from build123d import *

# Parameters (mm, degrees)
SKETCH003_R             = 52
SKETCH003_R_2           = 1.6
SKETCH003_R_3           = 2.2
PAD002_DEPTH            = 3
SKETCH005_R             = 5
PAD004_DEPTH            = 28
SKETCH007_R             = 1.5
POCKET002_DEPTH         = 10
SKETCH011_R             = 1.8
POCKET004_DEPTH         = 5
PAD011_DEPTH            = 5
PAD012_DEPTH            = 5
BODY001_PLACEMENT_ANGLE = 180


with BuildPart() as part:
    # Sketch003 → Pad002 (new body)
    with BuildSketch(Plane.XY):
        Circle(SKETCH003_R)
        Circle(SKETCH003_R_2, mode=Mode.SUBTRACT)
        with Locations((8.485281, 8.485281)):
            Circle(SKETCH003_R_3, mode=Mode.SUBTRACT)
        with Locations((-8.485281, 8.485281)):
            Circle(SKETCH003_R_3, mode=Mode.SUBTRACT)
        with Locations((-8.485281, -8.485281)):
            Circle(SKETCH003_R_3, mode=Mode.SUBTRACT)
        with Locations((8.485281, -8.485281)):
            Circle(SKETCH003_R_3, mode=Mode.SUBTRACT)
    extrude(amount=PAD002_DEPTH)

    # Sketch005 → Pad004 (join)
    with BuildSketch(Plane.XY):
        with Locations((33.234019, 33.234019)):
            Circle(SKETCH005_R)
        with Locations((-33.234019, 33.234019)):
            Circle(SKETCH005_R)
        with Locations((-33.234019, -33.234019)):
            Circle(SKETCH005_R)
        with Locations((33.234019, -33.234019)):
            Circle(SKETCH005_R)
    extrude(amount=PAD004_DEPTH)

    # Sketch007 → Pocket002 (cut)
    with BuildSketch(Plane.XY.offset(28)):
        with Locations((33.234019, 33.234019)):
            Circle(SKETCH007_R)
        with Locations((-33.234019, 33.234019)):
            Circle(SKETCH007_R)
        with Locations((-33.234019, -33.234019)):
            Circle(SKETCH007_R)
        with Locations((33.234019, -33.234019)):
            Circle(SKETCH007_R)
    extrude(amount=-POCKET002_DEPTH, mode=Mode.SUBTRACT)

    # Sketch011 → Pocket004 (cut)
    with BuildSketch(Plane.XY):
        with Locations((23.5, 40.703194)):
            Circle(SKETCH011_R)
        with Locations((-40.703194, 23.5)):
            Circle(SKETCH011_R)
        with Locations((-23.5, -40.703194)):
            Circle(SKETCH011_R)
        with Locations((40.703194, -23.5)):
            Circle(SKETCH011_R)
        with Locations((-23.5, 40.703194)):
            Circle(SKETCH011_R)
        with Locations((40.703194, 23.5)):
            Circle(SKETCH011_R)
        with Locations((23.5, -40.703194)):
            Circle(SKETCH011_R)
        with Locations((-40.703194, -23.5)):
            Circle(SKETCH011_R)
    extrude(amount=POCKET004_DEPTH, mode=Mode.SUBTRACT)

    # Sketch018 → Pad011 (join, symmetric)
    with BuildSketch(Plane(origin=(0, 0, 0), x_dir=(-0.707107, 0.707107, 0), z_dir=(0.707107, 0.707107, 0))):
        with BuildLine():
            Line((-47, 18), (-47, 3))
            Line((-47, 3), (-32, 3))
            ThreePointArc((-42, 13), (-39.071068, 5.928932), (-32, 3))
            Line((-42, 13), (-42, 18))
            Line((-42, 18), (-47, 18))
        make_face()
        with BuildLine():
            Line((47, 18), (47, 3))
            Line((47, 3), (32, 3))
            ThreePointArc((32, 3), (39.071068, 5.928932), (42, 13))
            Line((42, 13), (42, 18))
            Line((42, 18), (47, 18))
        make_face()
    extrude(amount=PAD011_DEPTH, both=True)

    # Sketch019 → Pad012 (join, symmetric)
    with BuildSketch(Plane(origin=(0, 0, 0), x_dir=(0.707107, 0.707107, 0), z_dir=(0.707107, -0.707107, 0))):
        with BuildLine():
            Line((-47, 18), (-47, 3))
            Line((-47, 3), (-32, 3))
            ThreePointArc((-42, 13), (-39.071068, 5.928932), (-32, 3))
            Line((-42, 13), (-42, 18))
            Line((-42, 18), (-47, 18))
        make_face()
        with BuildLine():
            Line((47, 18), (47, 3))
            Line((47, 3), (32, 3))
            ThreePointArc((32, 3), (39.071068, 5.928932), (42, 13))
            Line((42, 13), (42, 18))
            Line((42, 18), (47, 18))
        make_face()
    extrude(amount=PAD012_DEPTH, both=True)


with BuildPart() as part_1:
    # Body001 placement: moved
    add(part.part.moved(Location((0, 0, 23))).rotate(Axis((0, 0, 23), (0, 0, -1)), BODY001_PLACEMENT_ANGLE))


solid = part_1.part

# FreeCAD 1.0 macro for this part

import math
import FreeCAD as App
import Part
import Sketcher
from FreeCAD import Vector

doc = App.newDocument("Part")
params = doc.addObject("Spreadsheet::Sheet", "Params")
for row, (alias, value) in enumerate([
    ("sketch1_diameter", "104 mm"),
    ("sketch1_diameter2", "4.4 mm"),
    ("sketch1_diameter3", "3.2 mm"),
    ("pad1_length", "3 mm"),
    ("sketch2_diameter", "10 mm"),
    ("pad2_length", "28 mm"),
    ("sketch3_diameter", "3 mm"),
    ("pocket1_length", "10 mm"),
    ("sketch4_diameter", "3.6 mm"),
    ("pocket2_length", "5 mm"),
    ("sketch5_radius", "9.999999 mm"),
    ("sketch5_width", "15 mm"),
    ("pad3_length", "10 mm"),
    ("sketch6_radius", "9.999999 mm"),
    ("sketch6_width", "15 mm"),
    ("pad4_length", "10 mm"),
], start=1):
    params.set(f"A{row}", alias)
    params.set(f"B{row}", "=" + value)
    params.setAlias(f"B{row}", alias)

body = doc.addObject("PartDesign::Body", "Body")

# Sketch on XY plane
sketch1 = doc.addObject("Sketcher::SketchObject", "Sketch")
body.addObject(sketch1)
sketch1.AttachmentSupport = (doc.XY_Plane, [""])
sketch1.MapMode = "FlatFace"
sketch1.addGeometry([
    Part.Circle(Vector(0, 0, 0), Vector(0, 0, 1), 52),  # 0
    Part.Circle(Vector(-8.5, -8.5, 0), Vector(0, 0, 1), 2.2),  # 1
    Part.Circle(Vector(8.5, -8.5, 0), Vector(0, 0, 1), 2.2),  # 2
    Part.Circle(Vector(-8.5, 8.5, 0), Vector(0, 0, 1), 2.2),  # 3
    Part.Circle(Vector(0, 0, 0), Vector(0, 0, 1), 1.6),  # 4
    Part.Circle(Vector(8.5, 8.5, 0), Vector(0, 0, 1), 2.2),  # 5
], False)
sketch1.addConstraint([
    Sketcher.Constraint("Coincident", 0, 3, -1, 1),
    Sketcher.Constraint("Coincident", 4, 3, -1, 1),
    Sketcher.Constraint("Equal", 1, 2),
    Sketcher.Constraint("Equal", 2, 3),
    Sketcher.Constraint("Equal", 3, 5),
    Sketcher.Constraint("Symmetric", 2, 3, 3, 3, -1, 1),
    Sketcher.Constraint("Symmetric", 1, 3, 5, 3, -1, 1),
    Sketcher.Constraint("Symmetric", 1, 3, 2, 3, -2),
    Sketcher.Constraint("Diameter", 0, 104.0),
    Sketcher.Constraint("Diameter", 1, 4.4),
    Sketcher.Constraint("Diameter", 4, 3.2),
    Sketcher.Constraint("DistanceX", 1, 3, -1, 1, 8.485281),
    Sketcher.Constraint("DistanceY", 1, 3, -1, 1, 8.485281),
])
sketch1.setExpression("Constraints[8]", "Params.sketch1_diameter")
sketch1.setExpression("Constraints[9]", "Params.sketch1_diameter2")
sketch1.setExpression("Constraints[10]", "Params.sketch1_diameter3")
pad1 = doc.addObject("PartDesign::Pad", "Pad")
body.addObject(pad1)
pad1.Profile = sketch1
pad1.setExpression("Length", "Params.pad1_length")

# Sketch on XY plane
sketch2 = doc.addObject("Sketcher::SketchObject", "Sketch001")
body.addObject(sketch2)
sketch2.AttachmentSupport = (doc.XY_Plane, [""])
sketch2.MapMode = "FlatFace"
sketch2.addGeometry([
    Part.Circle(Vector(33, 33, 0), Vector(0, 0, 1), 5),
    Part.Circle(Vector(-33, 33, 0), Vector(0, 0, 1), 5),
    Part.Circle(Vector(-33, -33, 0), Vector(0, 0, 1), 5),
    Part.Circle(Vector(33, -33, 0), Vector(0, 0, 1), 5),
], False)
sketch2.addConstraint([
    Sketcher.Constraint("Equal", 0, 1),
    Sketcher.Constraint("Equal", 1, 2),
    Sketcher.Constraint("Equal", 2, 3),
    Sketcher.Constraint("Symmetric", 0, 3, 2, 3, -1, 1),
    Sketcher.Constraint("Symmetric", 1, 3, 3, 3, -1, 1),
    Sketcher.Constraint("Symmetric", 0, 3, 1, 3, -2),
    Sketcher.Constraint("Diameter", 0, 10.0),
    Sketcher.Constraint("DistanceX", -1, 1, 0, 3, 33.234019),
    Sketcher.Constraint("DistanceY", -1, 1, 0, 3, 33.234019),
])
sketch2.setExpression("Constraints[6]", "Params.sketch2_diameter")
pad2 = doc.addObject("PartDesign::Pad", "Pad001")
body.addObject(pad2)
pad2.Profile = sketch2
pad2.setExpression("Length", "Params.pad2_length")

# Sketch on XY plane
sketch3 = doc.addObject("Sketcher::SketchObject", "Sketch002")
body.addObject(sketch3)
sketch3.AttachmentSupport = (doc.XY_Plane, [""])
sketch3.MapMode = "FlatFace"
sketch3.AttachmentOffset = App.Placement(Vector(0, 0, 28), App.Rotation())
sketch3.addGeometry([
    Part.Circle(Vector(33.2, 33.2, 0), Vector(0, 0, 1), 1.5),
    Part.Circle(Vector(-33.2, 33.2, 0), Vector(0, 0, 1), 1.5),
    Part.Circle(Vector(-33.2, -33.2, 0), Vector(0, 0, 1), 1.5),
    Part.Circle(Vector(33.2, -33.2, 0), Vector(0, 0, 1), 1.5),
], False)
sketch3.addConstraint([
    Sketcher.Constraint("Equal", 0, 1),
    Sketcher.Constraint("Equal", 1, 2),
    Sketcher.Constraint("Equal", 2, 3),
    Sketcher.Constraint("Symmetric", 0, 3, 2, 3, -1, 1),
    Sketcher.Constraint("Symmetric", 1, 3, 3, 3, -1, 1),
    Sketcher.Constraint("Symmetric", 0, 3, 1, 3, -2),
    Sketcher.Constraint("Diameter", 0, 3.0),
    Sketcher.Constraint("DistanceX", -1, 1, 0, 3, 33.234019),
    Sketcher.Constraint("DistanceY", -1, 1, 0, 3, 33.234019),
])
sketch3.setExpression("Constraints[6]", "Params.sketch3_diameter")
pocket1 = doc.addObject("PartDesign::Pocket", "Pocket")
body.addObject(pocket1)
pocket1.Profile = sketch3
pocket1.setExpression("Length", "Params.pocket1_length")

# Sketch on XY plane
sketch4 = doc.addObject("Sketcher::SketchObject", "Sketch003")
body.addObject(sketch4)
sketch4.AttachmentSupport = (doc.XY_Plane, [""])
sketch4.MapMode = "FlatFace"
sketch4.addGeometry([
    Part.Circle(Vector(23.5, 40.7, 0), Vector(0, 0, 1), 1.8),  # 0
    Part.Circle(Vector(-40.7, 23.5, 0), Vector(0, 0, 1), 1.8),  # 1
    Part.Circle(Vector(-23.5, -40.7, 0), Vector(0, 0, 1), 1.8),  # 2
    Part.Circle(Vector(40.7, -23.5, 0), Vector(0, 0, 1), 1.8),  # 3
    Part.Circle(Vector(-23.5, 40.7, 0), Vector(0, 0, 1), 1.8),  # 4
    Part.Circle(Vector(40.7, 23.5, 0), Vector(0, 0, 1), 1.8),  # 5
    Part.Circle(Vector(23.5, -40.7, 0), Vector(0, 0, 1), 1.8),  # 6
    Part.Circle(Vector(-40.7, -23.5, 0), Vector(0, 0, 1), 1.8),  # 7
], False)
sketch4.addConstraint([
    Sketcher.Constraint("Equal", 0, 1),
    Sketcher.Constraint("Equal", 1, 2),
    Sketcher.Constraint("Equal", 2, 3),
    Sketcher.Constraint("Equal", 3, 4),
    Sketcher.Constraint("Equal", 4, 5),
    Sketcher.Constraint("Equal", 5, 6),
    Sketcher.Constraint("Equal", 6, 7),
    Sketcher.Constraint("Symmetric", 0, 3, 2, 3, -1, 1),
    Sketcher.Constraint("Symmetric", 1, 3, 3, 3, -1, 1),
    Sketcher.Constraint("Symmetric", 4, 3, 6, 3, -1, 1),
    Sketcher.Constraint("Symmetric", 5, 3, 7, 3, -1, 1),
    Sketcher.Constraint("Symmetric", 0, 3, 4, 3, -2),
    Sketcher.Constraint("Symmetric", 1, 3, 5, 3, -2),
    Sketcher.Constraint("Diameter", 0, 3.6),
    Sketcher.Constraint("DistanceX", 2, 3, 0, 3, 47.0),
    Sketcher.Constraint("DistanceY", 3, 3, 1, 3, 47.0),
    Sketcher.Constraint("DistanceY", 2, 3, 0, 3, 81.406388),
    Sketcher.Constraint("DistanceX", 1, 3, 3, 3, 81.406388),
])
sketch4.setExpression("Constraints[13]", "Params.sketch4_diameter")
pocket2 = doc.addObject("PartDesign::Pocket", "Pocket001")
body.addObject(pocket2)
pocket2.Profile = sketch4
pocket2.setExpression("Length", "Params.pocket2_length")
pocket2.Reversed = True

# Sketch on an angled plane
sketch5 = doc.addObject("Sketcher::SketchObject", "Sketch004")
body.addObject(sketch5)
sketch5.Placement = App.Placement(Vector(0, 0, 0), App.Rotation(Vector(-0.707106781, 0.707106781, 0), Vector(0, 0, 0.999999999), Vector(0.707106781, 0.707106781, 0), "ZXY"))
sketch5.addGeometry([
    Part.LineSegment(Vector(-47, 18, 0), Vector(-47, 3, 0)),  # 0
    Part.LineSegment(Vector(-47, 3, 0), Vector(-32, 3, 0)),  # 1
    Part.ArcOfCircle(Part.Circle(Vector(-32, 13, 0), Vector(0, 0, 1), 10), math.radians(180), math.radians(270)),  # 2
    Part.LineSegment(Vector(-42, 13, 0), Vector(-42, 18, 0)),  # 3
    Part.LineSegment(Vector(-42, 18, 0), Vector(-47, 18, 0)),  # 4
    Part.LineSegment(Vector(47, 3, 0), Vector(47, 18, 0)),  # 5
    Part.LineSegment(Vector(47, 18, 0), Vector(42, 18, 0)),  # 6
    Part.LineSegment(Vector(42, 18, 0), Vector(42, 13, 0)),  # 7
    Part.ArcOfCircle(Part.Circle(Vector(32, 13, 0), Vector(0, 0, 1), 10), math.radians(-90), math.radians(0)),  # 8
    Part.LineSegment(Vector(32, 3, 0), Vector(47, 3, 0)),  # 9
], False)
sketch5.addConstraint([
    Sketcher.Constraint("Coincident", 0, 2, 1, 1),
    Sketcher.Constraint("Tangent", 1, 2, 2, 2),
    Sketcher.Constraint("Tangent", 2, 1, 3, 1),
    Sketcher.Constraint("Coincident", 3, 2, 4, 1),
    Sketcher.Constraint("Coincident", 4, 2, 0, 1),
    Sketcher.Constraint("Coincident", 5, 2, 6, 1),
    Sketcher.Constraint("Coincident", 6, 2, 7, 1),
    Sketcher.Constraint("Tangent", 7, 2, 8, 2),
    Sketcher.Constraint("Tangent", 8, 1, 9, 1),
    Sketcher.Constraint("Coincident", 9, 2, 5, 1),
    Sketcher.Constraint("Vertical", 0),
    Sketcher.Constraint("Horizontal", 1),
    Sketcher.Constraint("Vertical", 3),
    Sketcher.Constraint("Horizontal", 4),
    Sketcher.Constraint("Vertical", 5),
    Sketcher.Constraint("Horizontal", 6),
    Sketcher.Constraint("Vertical", 7),
    Sketcher.Constraint("Horizontal", 9),
    Sketcher.Constraint("Equal", 2, 8),
    Sketcher.Constraint("Symmetric", 2, 3, 8, 3, -2),
    Sketcher.Constraint("Symmetric", 4, 2, 5, 2, -2),
    Sketcher.Constraint("Equal", 9, 0),
    Sketcher.Constraint("Radius", 2, 9.999999),
    Sketcher.Constraint("DistanceX", 1, 1, 1, 2, 15.0),
    Sketcher.Constraint("DistanceX", 2, 3, -1, 1, 32.000001),
    Sketcher.Constraint("DistanceY", -1, 1, 2, 3, 12.999999),
])
sketch5.setExpression("Constraints[22]", "Params.sketch5_radius")
sketch5.setExpression("Constraints[23]", "Params.sketch5_width")
pad3 = doc.addObject("PartDesign::Pad", "Pad002")
body.addObject(pad3)
pad3.Profile = sketch5
pad3.setExpression("Length", "Params.pad3_length")
pad3.Midplane = True

# Sketch on an angled plane
sketch6 = doc.addObject("Sketcher::SketchObject", "Sketch005")
body.addObject(sketch6)
sketch6.Placement = App.Placement(Vector(0, 0, 0), App.Rotation(Vector(0.707106781, 0.707106781, 0), Vector(0, 0, 0.999999999), Vector(0.707106781, -0.707106781, 0), "ZXY"))
sketch6.addGeometry([
    Part.LineSegment(Vector(-47, 18, 0), Vector(-47, 3, 0)),  # 0
    Part.LineSegment(Vector(-47, 3, 0), Vector(-32, 3, 0)),  # 1
    Part.ArcOfCircle(Part.Circle(Vector(-32, 13, 0), Vector(0, 0, 1), 10), math.radians(180), math.radians(270)),  # 2
    Part.LineSegment(Vector(-42, 13, 0), Vector(-42, 18, 0)),  # 3
    Part.LineSegment(Vector(-42, 18, 0), Vector(-47, 18, 0)),  # 4
    Part.LineSegment(Vector(47, 3, 0), Vector(47, 18, 0)),  # 5
    Part.LineSegment(Vector(47, 18, 0), Vector(42, 18, 0)),  # 6
    Part.LineSegment(Vector(42, 18, 0), Vector(42, 13, 0)),  # 7
    Part.ArcOfCircle(Part.Circle(Vector(32, 13, 0), Vector(0, 0, 1), 10), math.radians(-90), math.radians(0)),  # 8
    Part.LineSegment(Vector(32, 3, 0), Vector(47, 3, 0)),  # 9
], False)
sketch6.addConstraint([
    Sketcher.Constraint("Coincident", 0, 2, 1, 1),
    Sketcher.Constraint("Tangent", 1, 2, 2, 2),
    Sketcher.Constraint("Tangent", 2, 1, 3, 1),
    Sketcher.Constraint("Coincident", 3, 2, 4, 1),
    Sketcher.Constraint("Coincident", 4, 2, 0, 1),
    Sketcher.Constraint("Coincident", 5, 2, 6, 1),
    Sketcher.Constraint("Coincident", 6, 2, 7, 1),
    Sketcher.Constraint("Tangent", 7, 2, 8, 2),
    Sketcher.Constraint("Tangent", 8, 1, 9, 1),
    Sketcher.Constraint("Coincident", 9, 2, 5, 1),
    Sketcher.Constraint("Vertical", 0),
    Sketcher.Constraint("Horizontal", 1),
    Sketcher.Constraint("Vertical", 3),
    Sketcher.Constraint("Horizontal", 4),
    Sketcher.Constraint("Vertical", 5),
    Sketcher.Constraint("Horizontal", 6),
    Sketcher.Constraint("Vertical", 7),
    Sketcher.Constraint("Horizontal", 9),
    Sketcher.Constraint("Equal", 2, 8),
    Sketcher.Constraint("Symmetric", 2, 3, 8, 3, -2),
    Sketcher.Constraint("Symmetric", 4, 2, 5, 2, -2),
    Sketcher.Constraint("Equal", 9, 0),
    Sketcher.Constraint("Radius", 2, 9.999999),
    Sketcher.Constraint("DistanceX", 1, 1, 1, 2, 15.0),
    Sketcher.Constraint("DistanceX", 2, 3, -1, 1, 32.000001),
    Sketcher.Constraint("DistanceY", -1, 1, 2, 3, 12.999999),
])
sketch6.setExpression("Constraints[22]", "Params.sketch6_radius")
sketch6.setExpression("Constraints[23]", "Params.sketch6_width")
pad4 = doc.addObject("PartDesign::Pad", "Pad003")
body.addObject(pad4)
pad4.Profile = sketch6
pad4.setExpression("Length", "Params.pad4_length")
pad4.Midplane = True
body2 = doc.addObject("PartDesign::Body", "Body001")
doc.recompute()

body.Placement = App.Placement(Vector(0, 0, 23), App.Rotation(Vector(0, 0, -1), 180))
boolean = doc.addObject("PartDesign::Boolean", "Boolean")
body2.addObject(boolean)
boolean.Type = "Fuse"
boolean.addObjects([body])

doc.recompute()
